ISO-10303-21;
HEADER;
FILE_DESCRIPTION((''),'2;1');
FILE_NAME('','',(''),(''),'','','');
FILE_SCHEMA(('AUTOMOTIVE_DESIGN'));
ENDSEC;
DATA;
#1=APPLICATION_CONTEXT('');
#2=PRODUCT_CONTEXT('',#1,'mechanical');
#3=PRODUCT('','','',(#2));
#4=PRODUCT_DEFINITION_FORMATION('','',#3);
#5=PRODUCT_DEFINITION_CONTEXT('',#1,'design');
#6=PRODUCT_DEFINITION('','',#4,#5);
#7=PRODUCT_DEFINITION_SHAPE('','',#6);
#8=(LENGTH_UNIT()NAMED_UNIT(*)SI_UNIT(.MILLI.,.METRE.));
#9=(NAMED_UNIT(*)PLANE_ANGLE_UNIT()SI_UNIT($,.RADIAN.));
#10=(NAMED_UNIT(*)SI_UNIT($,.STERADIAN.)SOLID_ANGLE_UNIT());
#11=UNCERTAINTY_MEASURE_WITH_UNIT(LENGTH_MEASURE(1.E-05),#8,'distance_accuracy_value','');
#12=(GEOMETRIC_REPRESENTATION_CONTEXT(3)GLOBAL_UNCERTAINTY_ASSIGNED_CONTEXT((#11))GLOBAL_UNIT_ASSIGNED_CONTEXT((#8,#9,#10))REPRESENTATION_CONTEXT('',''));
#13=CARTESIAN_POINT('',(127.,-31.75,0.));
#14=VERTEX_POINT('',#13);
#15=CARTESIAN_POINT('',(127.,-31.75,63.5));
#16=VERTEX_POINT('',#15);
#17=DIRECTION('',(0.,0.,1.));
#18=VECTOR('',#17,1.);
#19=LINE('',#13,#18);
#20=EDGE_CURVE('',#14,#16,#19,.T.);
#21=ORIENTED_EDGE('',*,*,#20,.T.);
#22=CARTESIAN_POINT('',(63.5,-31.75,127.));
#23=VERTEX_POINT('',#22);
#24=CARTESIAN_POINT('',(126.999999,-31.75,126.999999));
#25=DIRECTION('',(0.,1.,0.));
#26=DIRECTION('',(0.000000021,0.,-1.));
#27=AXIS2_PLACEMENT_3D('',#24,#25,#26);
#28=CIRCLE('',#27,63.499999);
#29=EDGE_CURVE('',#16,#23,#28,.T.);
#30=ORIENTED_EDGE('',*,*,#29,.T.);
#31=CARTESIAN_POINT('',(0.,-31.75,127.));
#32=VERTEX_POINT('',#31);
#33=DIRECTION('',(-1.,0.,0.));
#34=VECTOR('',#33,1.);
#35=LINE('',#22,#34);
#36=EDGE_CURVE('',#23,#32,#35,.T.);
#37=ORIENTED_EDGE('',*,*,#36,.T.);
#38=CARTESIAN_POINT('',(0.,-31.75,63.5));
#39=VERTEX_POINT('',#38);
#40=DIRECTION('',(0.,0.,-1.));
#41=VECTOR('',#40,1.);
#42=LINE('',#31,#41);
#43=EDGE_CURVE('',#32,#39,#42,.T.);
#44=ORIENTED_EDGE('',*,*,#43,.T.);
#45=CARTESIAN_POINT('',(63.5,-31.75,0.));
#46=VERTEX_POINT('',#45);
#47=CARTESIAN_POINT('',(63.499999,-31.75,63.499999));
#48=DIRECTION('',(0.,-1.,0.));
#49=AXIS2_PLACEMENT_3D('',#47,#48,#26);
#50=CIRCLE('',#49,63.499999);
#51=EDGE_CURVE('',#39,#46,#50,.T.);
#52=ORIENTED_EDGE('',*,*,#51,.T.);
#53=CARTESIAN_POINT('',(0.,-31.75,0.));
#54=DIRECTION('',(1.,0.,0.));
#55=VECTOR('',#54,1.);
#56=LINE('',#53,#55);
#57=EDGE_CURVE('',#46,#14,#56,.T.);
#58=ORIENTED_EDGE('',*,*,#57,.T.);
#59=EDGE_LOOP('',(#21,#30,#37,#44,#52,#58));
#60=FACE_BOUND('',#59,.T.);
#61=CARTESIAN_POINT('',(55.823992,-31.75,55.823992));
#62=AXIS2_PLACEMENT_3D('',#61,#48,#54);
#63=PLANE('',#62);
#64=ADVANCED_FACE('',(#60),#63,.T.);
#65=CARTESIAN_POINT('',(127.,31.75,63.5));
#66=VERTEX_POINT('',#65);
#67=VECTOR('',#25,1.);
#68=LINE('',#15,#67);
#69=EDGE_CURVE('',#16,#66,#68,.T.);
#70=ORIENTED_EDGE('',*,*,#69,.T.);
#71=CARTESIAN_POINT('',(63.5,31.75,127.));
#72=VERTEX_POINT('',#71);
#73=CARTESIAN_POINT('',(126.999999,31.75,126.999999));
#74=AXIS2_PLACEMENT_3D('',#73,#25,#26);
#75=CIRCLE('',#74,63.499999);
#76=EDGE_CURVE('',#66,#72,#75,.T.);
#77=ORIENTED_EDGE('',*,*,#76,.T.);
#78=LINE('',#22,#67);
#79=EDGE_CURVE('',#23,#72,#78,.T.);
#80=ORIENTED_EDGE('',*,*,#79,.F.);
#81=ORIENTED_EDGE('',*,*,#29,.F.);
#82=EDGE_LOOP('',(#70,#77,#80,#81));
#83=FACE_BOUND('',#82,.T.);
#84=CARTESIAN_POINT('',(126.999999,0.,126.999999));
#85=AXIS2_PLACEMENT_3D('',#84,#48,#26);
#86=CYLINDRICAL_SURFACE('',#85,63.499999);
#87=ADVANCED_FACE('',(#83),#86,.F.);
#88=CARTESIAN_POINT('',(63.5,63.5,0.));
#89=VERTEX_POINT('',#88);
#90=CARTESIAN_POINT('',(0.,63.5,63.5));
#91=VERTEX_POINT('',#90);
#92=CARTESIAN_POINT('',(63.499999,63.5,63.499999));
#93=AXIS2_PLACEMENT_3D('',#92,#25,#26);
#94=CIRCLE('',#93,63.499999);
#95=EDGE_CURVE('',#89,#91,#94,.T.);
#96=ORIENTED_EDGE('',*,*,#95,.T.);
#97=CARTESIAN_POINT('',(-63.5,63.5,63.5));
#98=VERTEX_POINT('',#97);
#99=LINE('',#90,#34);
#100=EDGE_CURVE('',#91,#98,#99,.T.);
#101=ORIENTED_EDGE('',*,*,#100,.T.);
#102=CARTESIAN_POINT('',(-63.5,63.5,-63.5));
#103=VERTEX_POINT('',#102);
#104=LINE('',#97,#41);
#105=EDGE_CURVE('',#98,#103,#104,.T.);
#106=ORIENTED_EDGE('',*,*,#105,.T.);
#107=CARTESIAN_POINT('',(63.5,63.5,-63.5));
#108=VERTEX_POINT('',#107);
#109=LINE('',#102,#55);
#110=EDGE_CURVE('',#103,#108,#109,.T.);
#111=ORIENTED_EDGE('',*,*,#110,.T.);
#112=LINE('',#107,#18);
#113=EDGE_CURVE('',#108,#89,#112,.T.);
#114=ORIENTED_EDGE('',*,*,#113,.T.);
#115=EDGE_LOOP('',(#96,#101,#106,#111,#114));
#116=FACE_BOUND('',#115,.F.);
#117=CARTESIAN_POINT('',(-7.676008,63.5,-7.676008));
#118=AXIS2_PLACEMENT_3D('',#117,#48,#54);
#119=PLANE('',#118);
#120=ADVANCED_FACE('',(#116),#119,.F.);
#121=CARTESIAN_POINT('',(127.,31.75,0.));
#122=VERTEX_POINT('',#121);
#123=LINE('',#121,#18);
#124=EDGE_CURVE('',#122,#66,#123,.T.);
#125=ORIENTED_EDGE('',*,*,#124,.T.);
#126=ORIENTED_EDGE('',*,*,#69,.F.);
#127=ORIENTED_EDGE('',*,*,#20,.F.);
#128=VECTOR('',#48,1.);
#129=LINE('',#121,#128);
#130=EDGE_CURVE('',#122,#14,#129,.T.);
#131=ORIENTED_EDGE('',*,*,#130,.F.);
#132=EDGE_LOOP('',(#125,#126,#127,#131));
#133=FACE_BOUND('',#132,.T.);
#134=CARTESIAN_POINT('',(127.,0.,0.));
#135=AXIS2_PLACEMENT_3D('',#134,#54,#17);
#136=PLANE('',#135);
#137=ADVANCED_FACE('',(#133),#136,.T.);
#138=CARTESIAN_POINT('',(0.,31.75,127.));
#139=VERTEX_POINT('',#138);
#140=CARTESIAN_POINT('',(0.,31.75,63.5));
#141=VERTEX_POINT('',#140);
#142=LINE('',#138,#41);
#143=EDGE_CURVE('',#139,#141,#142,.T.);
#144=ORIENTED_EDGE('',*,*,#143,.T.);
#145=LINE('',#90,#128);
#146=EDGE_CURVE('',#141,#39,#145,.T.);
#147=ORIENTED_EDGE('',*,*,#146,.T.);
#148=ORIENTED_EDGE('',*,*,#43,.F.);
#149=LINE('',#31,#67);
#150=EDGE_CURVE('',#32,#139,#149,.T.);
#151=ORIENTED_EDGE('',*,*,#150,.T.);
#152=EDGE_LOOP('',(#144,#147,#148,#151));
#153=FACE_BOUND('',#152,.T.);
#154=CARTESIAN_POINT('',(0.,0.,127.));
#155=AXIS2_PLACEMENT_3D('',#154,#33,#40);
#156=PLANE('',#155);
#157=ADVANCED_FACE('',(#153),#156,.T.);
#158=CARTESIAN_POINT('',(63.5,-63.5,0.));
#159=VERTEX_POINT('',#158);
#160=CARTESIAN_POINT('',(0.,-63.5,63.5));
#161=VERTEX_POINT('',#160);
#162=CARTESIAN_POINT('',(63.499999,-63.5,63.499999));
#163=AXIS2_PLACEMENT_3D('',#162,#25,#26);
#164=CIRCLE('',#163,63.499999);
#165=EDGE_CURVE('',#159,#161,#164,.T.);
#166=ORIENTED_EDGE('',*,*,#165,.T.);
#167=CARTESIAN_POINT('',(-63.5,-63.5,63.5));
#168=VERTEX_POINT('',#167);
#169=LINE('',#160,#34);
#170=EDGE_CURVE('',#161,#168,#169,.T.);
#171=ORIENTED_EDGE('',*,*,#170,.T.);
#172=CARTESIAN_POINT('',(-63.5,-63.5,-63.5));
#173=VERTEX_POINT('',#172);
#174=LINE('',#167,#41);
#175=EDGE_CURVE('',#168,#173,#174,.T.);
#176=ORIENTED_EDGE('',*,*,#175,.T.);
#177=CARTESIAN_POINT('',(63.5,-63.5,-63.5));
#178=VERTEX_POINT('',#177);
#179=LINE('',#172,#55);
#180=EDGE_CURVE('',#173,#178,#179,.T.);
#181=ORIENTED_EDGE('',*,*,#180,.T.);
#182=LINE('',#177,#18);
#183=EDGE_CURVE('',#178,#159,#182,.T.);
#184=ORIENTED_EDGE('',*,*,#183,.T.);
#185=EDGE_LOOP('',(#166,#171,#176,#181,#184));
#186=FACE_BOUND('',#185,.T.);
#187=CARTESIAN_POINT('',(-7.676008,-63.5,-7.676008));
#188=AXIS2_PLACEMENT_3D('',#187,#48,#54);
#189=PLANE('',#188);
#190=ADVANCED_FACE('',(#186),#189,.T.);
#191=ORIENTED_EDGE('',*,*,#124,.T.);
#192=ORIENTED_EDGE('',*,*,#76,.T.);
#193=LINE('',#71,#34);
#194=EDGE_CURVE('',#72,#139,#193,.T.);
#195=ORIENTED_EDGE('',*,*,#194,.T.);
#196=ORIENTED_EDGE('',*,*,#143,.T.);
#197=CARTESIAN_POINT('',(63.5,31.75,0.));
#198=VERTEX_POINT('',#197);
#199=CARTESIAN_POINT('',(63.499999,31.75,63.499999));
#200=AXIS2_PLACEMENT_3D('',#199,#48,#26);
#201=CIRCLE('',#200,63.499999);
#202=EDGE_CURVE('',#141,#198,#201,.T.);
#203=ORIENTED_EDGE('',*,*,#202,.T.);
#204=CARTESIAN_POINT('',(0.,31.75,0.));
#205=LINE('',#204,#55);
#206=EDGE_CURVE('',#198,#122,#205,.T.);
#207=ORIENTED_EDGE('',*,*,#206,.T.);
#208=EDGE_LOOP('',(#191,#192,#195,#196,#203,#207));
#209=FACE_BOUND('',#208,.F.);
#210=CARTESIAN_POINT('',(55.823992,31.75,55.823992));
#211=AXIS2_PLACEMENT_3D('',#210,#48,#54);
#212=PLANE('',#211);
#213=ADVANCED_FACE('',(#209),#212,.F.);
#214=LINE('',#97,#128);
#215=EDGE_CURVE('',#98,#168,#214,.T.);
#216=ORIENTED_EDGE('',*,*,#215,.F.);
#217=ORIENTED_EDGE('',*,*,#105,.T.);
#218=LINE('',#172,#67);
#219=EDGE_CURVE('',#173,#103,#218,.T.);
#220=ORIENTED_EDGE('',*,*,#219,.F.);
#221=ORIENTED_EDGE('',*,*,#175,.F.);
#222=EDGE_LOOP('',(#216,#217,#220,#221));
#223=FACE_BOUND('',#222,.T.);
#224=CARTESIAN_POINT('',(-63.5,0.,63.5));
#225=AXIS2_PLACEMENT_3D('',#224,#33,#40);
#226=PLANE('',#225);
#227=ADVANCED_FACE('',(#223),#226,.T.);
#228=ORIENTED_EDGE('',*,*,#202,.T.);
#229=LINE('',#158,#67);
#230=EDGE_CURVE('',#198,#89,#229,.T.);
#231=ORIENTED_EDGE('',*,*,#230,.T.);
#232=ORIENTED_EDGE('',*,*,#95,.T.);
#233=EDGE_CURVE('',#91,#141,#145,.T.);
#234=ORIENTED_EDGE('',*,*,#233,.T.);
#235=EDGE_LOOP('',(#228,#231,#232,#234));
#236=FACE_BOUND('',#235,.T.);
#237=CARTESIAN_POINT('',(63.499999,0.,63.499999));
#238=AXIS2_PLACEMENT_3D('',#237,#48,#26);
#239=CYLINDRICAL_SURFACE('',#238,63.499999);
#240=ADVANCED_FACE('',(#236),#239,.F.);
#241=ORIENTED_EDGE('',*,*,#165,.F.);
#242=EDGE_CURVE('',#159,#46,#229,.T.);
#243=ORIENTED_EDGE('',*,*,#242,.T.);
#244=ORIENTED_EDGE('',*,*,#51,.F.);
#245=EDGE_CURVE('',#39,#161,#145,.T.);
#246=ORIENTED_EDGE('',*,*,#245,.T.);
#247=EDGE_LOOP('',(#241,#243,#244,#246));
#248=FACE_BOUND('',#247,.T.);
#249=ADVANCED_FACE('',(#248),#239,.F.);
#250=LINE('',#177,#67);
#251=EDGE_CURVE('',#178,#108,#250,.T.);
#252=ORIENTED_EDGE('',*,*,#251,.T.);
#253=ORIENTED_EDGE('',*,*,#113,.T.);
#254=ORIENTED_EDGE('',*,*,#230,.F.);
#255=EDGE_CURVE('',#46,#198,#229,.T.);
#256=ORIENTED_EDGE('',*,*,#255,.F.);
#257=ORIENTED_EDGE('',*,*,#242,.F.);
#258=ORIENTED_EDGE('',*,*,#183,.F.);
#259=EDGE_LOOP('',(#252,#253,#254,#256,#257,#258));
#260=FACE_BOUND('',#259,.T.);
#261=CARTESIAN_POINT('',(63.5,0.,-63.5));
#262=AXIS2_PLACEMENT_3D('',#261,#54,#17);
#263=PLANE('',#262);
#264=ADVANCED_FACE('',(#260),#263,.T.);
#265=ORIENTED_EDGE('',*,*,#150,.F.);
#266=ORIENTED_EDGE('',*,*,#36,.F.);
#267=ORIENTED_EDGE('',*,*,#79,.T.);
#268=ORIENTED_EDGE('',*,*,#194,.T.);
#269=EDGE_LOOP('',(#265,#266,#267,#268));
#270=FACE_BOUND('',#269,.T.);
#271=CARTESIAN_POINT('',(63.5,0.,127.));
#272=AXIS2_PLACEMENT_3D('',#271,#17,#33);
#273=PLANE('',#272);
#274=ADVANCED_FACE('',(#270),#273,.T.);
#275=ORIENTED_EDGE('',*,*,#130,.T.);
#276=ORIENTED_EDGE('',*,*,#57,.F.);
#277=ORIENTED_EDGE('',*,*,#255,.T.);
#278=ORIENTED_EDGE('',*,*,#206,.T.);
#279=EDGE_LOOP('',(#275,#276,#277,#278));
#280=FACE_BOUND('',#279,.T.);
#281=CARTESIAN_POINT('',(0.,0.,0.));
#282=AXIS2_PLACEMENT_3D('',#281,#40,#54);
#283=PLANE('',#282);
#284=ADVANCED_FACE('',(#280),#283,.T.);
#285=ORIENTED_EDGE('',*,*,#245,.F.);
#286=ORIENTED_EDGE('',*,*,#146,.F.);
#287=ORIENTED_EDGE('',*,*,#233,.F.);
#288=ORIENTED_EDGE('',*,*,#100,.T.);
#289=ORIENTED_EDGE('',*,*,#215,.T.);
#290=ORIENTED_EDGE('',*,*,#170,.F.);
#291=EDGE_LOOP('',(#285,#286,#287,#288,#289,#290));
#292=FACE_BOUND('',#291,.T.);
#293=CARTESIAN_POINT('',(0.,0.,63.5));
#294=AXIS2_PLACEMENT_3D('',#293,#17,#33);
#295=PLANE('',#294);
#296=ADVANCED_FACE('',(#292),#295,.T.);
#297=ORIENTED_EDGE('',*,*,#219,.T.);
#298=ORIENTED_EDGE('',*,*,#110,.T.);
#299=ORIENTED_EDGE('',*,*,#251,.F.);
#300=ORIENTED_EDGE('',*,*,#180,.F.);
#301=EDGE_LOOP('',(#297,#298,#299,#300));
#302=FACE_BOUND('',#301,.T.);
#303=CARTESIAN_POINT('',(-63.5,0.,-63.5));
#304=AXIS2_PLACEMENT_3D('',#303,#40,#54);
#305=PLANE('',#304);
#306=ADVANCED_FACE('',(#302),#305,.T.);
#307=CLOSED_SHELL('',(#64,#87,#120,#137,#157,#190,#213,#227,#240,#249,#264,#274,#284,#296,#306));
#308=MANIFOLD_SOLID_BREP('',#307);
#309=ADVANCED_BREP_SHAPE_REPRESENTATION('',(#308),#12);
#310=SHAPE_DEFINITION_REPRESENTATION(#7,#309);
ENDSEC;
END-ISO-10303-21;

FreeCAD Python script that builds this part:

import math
import FreeCAD as App
import Part
import Sketcher

V = App.Vector
Q = App.Units.Quantity

doc = App.newDocument("Part")
body = doc.addObject("PartDesign::Body", "Body")

# Sketch on XZ plane
sketch1 = doc.addObject("Sketcher::SketchObject", "Sketch")
body.addObject(sketch1)
sketch1.AttachmentSupport = (doc.XZ_Plane, [""])
sketch1.MapMode = "FlatFace"
sketch1.addGeometry(Part.ArcOfCircle(Part.Circle(V(63, 63, 0), V(0, 0, 1), 63), math.radians(180), math.radians(270)), False)
sketch1.addGeometry(Part.LineSegment(V(0, 64, 0), V(-64, 64, 0)), False)
sketch1.addGeometry(Part.LineSegment(V(-64, 64, 0), V(-64, -64, 0)), False)
sketch1.addGeometry(Part.LineSegment(V(-64, -64, 0), V(64, -64, 0)), False)
sketch1.addGeometry(Part.LineSegment(V(64, -64, 0), V(64, 0, 0)), False)
sketch1.addConstraint(Sketcher.Constraint("Coincident", 0, 1, 1, 1))
sketch1.addConstraint(Sketcher.Constraint("Coincident", 1, 2, 2, 1))
sketch1.addConstraint(Sketcher.Constraint("Coincident", 2, 2, 3, 1))
sketch1.addConstraint(Sketcher.Constraint("Coincident", 3, 2, 4, 1))
sketch1.addConstraint(Sketcher.Constraint("Coincident", 4, 2, 0, 2))
sketch1.addConstraint(Sketcher.Constraint("Horizontal", 1))
sketch1.addConstraint(Sketcher.Constraint("Vertical", 2))
sketch1.addConstraint(Sketcher.Constraint("Horizontal", 3))
sketch1.addConstraint(Sketcher.Constraint("Vertical", 4))
sketch1.addConstraint(Sketcher.Constraint("Symmetric", 1, 2, 3, 2, -1, 1))
sketch1.addConstraint(Sketcher.Constraint("PointOnObject", 0, 1, -2))
sketch1.addConstraint(Sketcher.Constraint("PointOnObject", 4, 2, -1))
sketch1.addConstraint(Sketcher.Constraint("Vertical", 0, 3, 3, 2))
sketch1.addConstraint(Sketcher.Constraint("Equal", 3, 2))
sketch1.addConstraint(Sketcher.Constraint("Radius", 0, Q("2.4999999 in")))
pad1 = doc.addObject("PartDesign::Pad", "Pad")
body.addObject(pad1)
pad1.Profile = sketch1
pad1.Length = Q("5 in")
pad1.Midplane = True

# Sketch on XZ plane
sketch2 = doc.addObject("Sketcher::SketchObject", "Sketch001")
body.addObject(sketch2)
sketch2.AttachmentSupport = (doc.XZ_Plane, [""])
sketch2.MapMode = "FlatFace"
sketch2.addGeometry(Part.LineSegment(V(0, 127, 0), V(0, 0, 0)), False)
sketch2.addGeometry(Part.LineSegment(V(0, 0, 0), V(127, 0, 0)), False)
sketch2.addGeometry(Part.LineSegment(V(127, 0, 0), V(127, 64, 0)), False)
sketch2.addGeometry(Part.ArcOfCircle(Part.Circle(V(127, 127, 0), V(0, 0, 1), 63), math.radians(180), math.radians(270)), False)
sketch2.addGeometry(Part.LineSegment(V(64, 127, 0), V(0, 127, 0)), False)
sketch2.addConstraint(Sketcher.Constraint("Coincident", 0, 2, 1, 1))
sketch2.addConstraint(Sketcher.Constraint("Coincident", 1, 2, 2, 1))
sketch2.addConstraint(Sketcher.Constraint("Coincident", 2, 2, 3, 2))
sketch2.addConstraint(Sketcher.Constraint("Coincident", 3, 1, 4, 1))
sketch2.addConstraint(Sketcher.Constraint("Coincident", 4, 2, 0, 1))
sketch2.addConstraint(Sketcher.Constraint("Vertical", 0))
sketch2.addConstraint(Sketcher.Constraint("Horizontal", 1))
sketch2.addConstraint(Sketcher.Constraint("Vertical", 2))
sketch2.addConstraint(Sketcher.Constraint("Horizontal", 4))
sketch2.addConstraint(Sketcher.Constraint("Coincident", 0, 2, -1, 1))
sketch2.addConstraint(Sketcher.Constraint("Vertical", 3, 3, 1, 2))
sketch2.addConstraint(Sketcher.Constraint("Equal", 1, 0))
sketch2.addConstraint(Sketcher.Constraint("Equal", 4, 2))
sketch2.addConstraint(Sketcher.Constraint("Radius", 3, Q("2.4999999 in")))
sketch2.addConstraint(Sketcher.Constraint("DistanceX", 1, 1, 1, 2, Q("5 in")))
pad2 = doc.addObject("PartDesign::Pad", "Pad001")
body.addObject(pad2)
pad2.Profile = sketch2
pad2.Length = Q("2.5 in")
pad2.Midplane = True

doc.recompute()
